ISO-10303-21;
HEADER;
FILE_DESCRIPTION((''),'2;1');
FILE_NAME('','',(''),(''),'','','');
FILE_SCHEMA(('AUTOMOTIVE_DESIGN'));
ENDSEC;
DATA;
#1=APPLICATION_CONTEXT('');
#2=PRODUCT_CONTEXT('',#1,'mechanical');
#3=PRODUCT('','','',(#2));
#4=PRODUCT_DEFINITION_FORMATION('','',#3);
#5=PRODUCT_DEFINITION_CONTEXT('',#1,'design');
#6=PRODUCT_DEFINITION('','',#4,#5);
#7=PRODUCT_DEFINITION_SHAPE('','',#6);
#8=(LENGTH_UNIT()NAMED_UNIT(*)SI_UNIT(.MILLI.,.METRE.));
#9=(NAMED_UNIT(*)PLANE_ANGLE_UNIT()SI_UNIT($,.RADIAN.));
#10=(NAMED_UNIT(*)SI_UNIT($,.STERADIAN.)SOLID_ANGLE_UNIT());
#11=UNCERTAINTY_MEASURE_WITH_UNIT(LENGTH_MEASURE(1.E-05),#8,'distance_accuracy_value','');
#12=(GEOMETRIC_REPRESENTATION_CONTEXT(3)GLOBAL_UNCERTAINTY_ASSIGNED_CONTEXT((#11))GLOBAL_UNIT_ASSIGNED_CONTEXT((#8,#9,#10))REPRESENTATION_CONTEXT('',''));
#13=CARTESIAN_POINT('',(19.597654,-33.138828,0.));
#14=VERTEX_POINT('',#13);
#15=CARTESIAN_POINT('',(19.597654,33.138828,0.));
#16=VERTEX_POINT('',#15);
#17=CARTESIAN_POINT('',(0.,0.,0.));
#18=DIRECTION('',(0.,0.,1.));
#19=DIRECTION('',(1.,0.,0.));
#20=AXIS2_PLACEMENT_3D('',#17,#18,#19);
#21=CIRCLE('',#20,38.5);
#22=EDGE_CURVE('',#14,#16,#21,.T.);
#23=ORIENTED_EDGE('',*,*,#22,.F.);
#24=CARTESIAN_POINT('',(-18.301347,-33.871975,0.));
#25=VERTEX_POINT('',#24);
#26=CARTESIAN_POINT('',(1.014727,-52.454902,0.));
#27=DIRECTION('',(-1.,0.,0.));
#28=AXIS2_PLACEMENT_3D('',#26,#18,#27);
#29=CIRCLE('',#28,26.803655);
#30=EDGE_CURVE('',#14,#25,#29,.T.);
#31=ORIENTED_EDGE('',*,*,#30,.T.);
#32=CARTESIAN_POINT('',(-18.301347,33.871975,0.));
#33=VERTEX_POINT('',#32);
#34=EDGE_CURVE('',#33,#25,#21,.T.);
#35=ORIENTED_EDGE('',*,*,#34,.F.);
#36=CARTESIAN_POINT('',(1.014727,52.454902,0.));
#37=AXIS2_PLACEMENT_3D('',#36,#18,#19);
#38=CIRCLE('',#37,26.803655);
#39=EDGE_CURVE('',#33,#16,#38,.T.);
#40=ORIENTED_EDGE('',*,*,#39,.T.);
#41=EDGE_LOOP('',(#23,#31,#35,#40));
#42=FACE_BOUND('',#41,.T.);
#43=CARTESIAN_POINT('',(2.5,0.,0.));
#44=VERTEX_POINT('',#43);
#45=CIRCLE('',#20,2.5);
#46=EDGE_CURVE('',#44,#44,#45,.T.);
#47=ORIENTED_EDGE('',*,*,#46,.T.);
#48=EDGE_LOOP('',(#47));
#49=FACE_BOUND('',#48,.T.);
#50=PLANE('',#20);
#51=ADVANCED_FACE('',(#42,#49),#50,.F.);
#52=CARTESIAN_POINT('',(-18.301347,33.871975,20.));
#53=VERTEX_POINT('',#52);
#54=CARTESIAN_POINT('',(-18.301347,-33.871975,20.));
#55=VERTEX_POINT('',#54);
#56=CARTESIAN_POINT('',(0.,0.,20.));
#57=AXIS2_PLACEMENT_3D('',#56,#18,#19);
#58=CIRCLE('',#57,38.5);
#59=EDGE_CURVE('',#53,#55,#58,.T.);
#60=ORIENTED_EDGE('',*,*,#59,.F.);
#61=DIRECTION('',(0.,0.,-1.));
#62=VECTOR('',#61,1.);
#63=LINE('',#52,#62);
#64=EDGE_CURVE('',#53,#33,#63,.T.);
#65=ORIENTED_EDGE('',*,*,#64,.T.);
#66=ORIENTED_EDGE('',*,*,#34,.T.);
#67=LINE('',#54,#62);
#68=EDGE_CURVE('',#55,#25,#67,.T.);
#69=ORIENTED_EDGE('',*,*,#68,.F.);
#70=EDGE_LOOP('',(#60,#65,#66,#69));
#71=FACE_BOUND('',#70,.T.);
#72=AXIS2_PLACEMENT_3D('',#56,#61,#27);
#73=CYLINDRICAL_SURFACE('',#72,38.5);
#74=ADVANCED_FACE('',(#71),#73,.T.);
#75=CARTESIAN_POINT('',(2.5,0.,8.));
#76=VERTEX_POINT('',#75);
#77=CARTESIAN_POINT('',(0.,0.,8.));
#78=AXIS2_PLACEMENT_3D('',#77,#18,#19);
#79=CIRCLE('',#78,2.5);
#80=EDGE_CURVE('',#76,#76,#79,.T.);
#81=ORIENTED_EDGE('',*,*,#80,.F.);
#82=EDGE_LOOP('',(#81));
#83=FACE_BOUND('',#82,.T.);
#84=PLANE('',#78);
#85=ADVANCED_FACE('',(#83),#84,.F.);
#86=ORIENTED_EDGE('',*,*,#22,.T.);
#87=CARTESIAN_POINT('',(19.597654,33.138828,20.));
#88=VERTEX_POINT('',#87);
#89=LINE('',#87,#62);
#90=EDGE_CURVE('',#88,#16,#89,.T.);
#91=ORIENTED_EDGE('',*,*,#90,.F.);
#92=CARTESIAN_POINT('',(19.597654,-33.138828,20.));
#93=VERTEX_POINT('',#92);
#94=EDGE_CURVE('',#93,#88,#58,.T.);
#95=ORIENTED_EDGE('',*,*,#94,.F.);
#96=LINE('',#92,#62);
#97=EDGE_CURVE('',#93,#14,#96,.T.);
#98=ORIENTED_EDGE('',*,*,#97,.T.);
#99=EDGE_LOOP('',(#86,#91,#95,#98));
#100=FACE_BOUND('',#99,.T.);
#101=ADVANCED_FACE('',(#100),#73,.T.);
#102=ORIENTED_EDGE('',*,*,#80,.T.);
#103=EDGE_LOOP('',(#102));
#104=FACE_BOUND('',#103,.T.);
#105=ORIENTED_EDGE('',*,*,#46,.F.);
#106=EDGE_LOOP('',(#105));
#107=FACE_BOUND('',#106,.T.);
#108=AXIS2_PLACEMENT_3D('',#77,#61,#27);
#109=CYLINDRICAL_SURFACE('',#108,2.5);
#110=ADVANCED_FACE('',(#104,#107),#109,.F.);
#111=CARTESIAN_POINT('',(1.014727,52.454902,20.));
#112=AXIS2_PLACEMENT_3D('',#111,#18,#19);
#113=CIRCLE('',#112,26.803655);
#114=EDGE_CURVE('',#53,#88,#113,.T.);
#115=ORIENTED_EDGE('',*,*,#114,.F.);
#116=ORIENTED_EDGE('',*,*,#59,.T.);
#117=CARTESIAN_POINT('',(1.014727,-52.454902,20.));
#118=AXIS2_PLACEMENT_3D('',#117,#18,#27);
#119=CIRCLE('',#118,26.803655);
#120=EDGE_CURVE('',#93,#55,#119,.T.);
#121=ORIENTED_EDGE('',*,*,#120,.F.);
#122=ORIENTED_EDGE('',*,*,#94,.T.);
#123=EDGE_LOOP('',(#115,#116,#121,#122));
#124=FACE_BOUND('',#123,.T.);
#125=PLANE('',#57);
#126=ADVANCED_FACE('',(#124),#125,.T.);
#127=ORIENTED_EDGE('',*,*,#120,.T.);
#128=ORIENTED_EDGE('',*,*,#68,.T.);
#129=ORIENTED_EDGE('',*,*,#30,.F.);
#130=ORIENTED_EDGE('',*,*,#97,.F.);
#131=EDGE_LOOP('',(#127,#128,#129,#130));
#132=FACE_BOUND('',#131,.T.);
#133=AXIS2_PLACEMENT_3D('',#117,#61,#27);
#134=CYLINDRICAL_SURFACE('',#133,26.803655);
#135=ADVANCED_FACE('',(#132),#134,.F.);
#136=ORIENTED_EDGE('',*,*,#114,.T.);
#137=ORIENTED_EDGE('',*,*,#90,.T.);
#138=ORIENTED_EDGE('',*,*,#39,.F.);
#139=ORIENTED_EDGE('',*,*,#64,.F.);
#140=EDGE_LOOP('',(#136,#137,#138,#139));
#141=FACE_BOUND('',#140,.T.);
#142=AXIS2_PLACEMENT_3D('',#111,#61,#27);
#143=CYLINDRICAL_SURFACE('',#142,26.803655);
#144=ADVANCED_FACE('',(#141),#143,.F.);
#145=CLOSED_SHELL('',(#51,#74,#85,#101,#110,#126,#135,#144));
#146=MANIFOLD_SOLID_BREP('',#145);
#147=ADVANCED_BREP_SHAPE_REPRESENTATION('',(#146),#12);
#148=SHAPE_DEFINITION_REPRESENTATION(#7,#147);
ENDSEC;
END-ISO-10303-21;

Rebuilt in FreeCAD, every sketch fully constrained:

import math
import FreeCAD as App
import Part
import Sketcher
from FreeCAD import Vector
Q = App.Units.Quantity

doc = App.newDocument("Part")
body = doc.addObject("PartDesign::Body", "Body")

# Sketch on XY plane
sketch1 = body.newObject("Sketcher::SketchObject", "Sketch")
sketch1.AttachmentSupport = (doc.getObject("XY_Plane"), [""])
sketch1.MapMode = "FlatFace"
sketch1.addGeometry(Part.Circle(Vector(0, 0, 0), Vector(0, 0, 1), 38), False)
sketch1.addConstraint(Sketcher.Constraint("Coincident", 0, 3, -1, 1))
sketch1.addConstraint(Sketcher.Constraint("Diameter", 0, Q("77 mm")))
pad1 = body.newObject("PartDesign::Pad", "Pad")
pad1.Profile = sketch1
pad1.Length = 20

# Sketch on XY plane
sketch2 = body.newObject("Sketcher::SketchObject", "Sketch001")
sketch2.AttachmentSupport = (doc.getObject("XY_Plane"), [""])
sketch2.MapMode = "FlatFace"
sketch2.addGeometry(Part.ArcOfCircle(Part.Circle(Vector(1, 52, 0), Vector(0, 0, 1), 27), math.radians(-136), math.radians(-46)), False)
sketch2.addGeometry(Part.ArcOfCircle(Part.Circle(Vector(0, 0, 0), Vector(0, 0, 1), 38), math.radians(59), math.radians(118)), False)
sketch2.addGeometry(Part.ArcOfCircle(Part.Circle(Vector(1, -52, 0), Vector(0, 0, 1), 27), math.radians(46), math.radians(136)), False)
sketch2.addGeometry(Part.ArcOfCircle(Part.Circle(Vector(0, 0, 0), Vector(0, 0, 1), 38), math.radians(-118), math.radians(-59)), False)
sketch2.addConstraint(Sketcher.Constraint("Coincident", 0, 1, 1, 2))
sketch2.addConstraint(Sketcher.Constraint("Coincident", 1, 1, 0, 2))
sketch2.addConstraint(Sketcher.Constraint("Coincident", 2, 1, 3, 2))
sketch2.addConstraint(Sketcher.Constraint("Coincident", 3, 1, 2, 2))
sketch2.addConstraint(Sketcher.Constraint("Coincident", 1, 3, -1, 1))
sketch2.addConstraint(Sketcher.Constraint("Coincident", 3, 3, -1, 1))
sketch2.addConstraint(Sketcher.Constraint("Equal", 0, 2))
sketch2.addConstraint(Sketcher.Constraint("Equal", 1, 3))
sketch2.addConstraint(Sketcher.Constraint("Symmetric", 0, 3, 2, 3, -1))
sketch2.addConstraint(Sketcher.Constraint("Radius", 1, Q("38.5 mm")))
sketch2.addConstraint(Sketcher.Constraint("Radius", 0, Q("26.803655 mm")))
sketch2.addConstraint(Sketcher.Constraint("DistanceX", 0, 1, 1, 1, Q("37.899001 mm")))
sketch2.addConstraint(Sketcher.Constraint("DistanceY", -1, 1, 1, 1, Q("33.138828 mm")))
pocket1 = body.newObject("PartDesign::Pocket", "Pocket")
pocket1.Profile = sketch2
pocket1.Length = 20
pocket1.Reversed = True

# Sketch on XY plane
sketch3 = body.newObject("Sketcher::SketchObject", "Sketch002")
sketch3.AttachmentSupport = (doc.getObject("XY_Plane"), [""])
sketch3.MapMode = "FlatFace"
sketch3.addGeometry(Part.Circle(Vector(0, 0, 0), Vector(0, 0, 1), 2.5), False)
sketch3.addConstraint(Sketcher.Constraint("Coincident", 0, 3, -1, 1))
sketch3.addConstraint(Sketcher.Constraint("Diameter", 0, Q("5 mm")))
pocket2 = body.newObject("PartDesign::Pocket", "Pocket001")
pocket2.Profile = sketch3
pocket2.Length = 8
pocket2.Reversed = True

doc.recompute()
